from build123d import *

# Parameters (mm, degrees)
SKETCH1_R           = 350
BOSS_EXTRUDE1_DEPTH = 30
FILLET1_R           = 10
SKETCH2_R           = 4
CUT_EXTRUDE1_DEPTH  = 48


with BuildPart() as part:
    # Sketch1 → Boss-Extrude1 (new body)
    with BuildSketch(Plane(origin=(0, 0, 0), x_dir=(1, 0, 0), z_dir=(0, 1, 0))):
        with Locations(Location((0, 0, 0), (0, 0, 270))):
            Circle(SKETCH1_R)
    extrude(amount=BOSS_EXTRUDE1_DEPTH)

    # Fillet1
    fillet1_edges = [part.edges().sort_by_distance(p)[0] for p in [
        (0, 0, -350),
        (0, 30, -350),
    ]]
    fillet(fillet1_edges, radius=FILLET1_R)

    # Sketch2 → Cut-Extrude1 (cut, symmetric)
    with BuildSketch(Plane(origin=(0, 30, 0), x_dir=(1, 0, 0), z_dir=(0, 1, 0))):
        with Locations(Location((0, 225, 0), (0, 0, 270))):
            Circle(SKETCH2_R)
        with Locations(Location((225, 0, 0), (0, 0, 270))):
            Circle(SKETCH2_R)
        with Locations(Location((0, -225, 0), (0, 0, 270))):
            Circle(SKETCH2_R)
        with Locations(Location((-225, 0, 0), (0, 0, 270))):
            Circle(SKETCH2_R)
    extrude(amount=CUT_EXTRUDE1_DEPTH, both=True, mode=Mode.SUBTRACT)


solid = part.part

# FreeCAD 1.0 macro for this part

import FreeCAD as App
import Part
import Sketcher


def edges_at(feature, points):
    """Names of the edges that pass closest to the given points."""
    edges = feature.Shape.Edges
    near = lambda p: min(range(len(edges)), key=lambda i: edges[i].distToShape(Part.Vertex(*p))[0])
    return sorted({f"Edge{near(p) + 1}" for p in points})

doc = App.newDocument("Part")
body = doc.addObject("PartDesign::Body", "Body")

# Sketch on XZ plane
sketch1 = doc.addObject("Sketcher::SketchObject", "Sketch")
body.addObject(sketch1)
sketch1.AttachmentSupport = (doc.XZ_Plane, [""])
sketch1.MapMode = "FlatFace"
sketch1.addGeometry(Part.Circle(App.Vector(0, 0, 0), App.Vector(0, 0, 1), 350), False)
sketch1.addConstraint(Sketcher.Constraint("Coincident", 0, 3, -1, 1))
sketch1.addConstraint(Sketcher.Constraint("Diameter", 0, 700.0))
pad1 = doc.addObject("PartDesign::Pad", "Pad")
body.addObject(pad1)
pad1.Profile = sketch1
pad1.Length = 30
pad1.Reversed = True
doc.recompute()

fillet = doc.addObject("PartDesign::Fillet", "Fillet")
body.addObject(fillet)
fillet.Base = (pad1, edges_at(pad1, [(0, 0, -350), (0, 30, -350)]))
fillet.Radius = 10

# Sketch on XZ plane
sketch2 = doc.addObject("Sketcher::SketchObject", "Sketch001")
body.addObject(sketch2)
sketch2.AttachmentSupport = (doc.XZ_Plane, [""])
sketch2.MapMode = "FlatFace"
sketch2.AttachmentOffset = App.Placement(App.Vector(0, 0, -30), App.Rotation())
sketch2.addGeometry(Part.Circle(App.Vector(0, -225, 0), App.Vector(0, 0, 1), 4), False)
sketch2.addGeometry(Part.Circle(App.Vector(225, 0, 0), App.Vector(0, 0, 1), 4), False)
sketch2.addGeometry(Part.Circle(App.Vector(0, 225, 0), App.Vector(0, 0, 1), 4), False)
sketch2.addGeometry(Part.Circle(App.Vector(-225, 0, 0), App.Vector(0, 0, 1), 4), False)
sketch2.addConstraint(Sketcher.Constraint("Equal", 0, 1))
sketch2.addConstraint(Sketcher.Constraint("Equal", 1, 2))
sketch2.addConstraint(Sketcher.Constraint("Equal", 2, 3))
sketch2.addConstraint(Sketcher.Constraint("Symmetric", 0, 3, 2, 3, -1, 1))
sketch2.addConstraint(Sketcher.Constraint("Symmetric", 1, 3, 3, 3, -1, 1))
sketch2.addConstraint(Sketcher.Constraint("PointOnObject", 0, 3, -2))
sketch2.addConstraint(Sketcher.Constraint("PointOnObject", 1, 3, -1))
sketch2.addConstraint(Sketcher.Constraint("Diameter", 0, 8.0))
sketch2.addConstraint(Sketcher.Constraint("DistanceY", 0, 3, -1, 1, 225.0))
sketch2.addConstraint(Sketcher.Constraint("DistanceX", -1, 1, 1, 3, 225.0))
pocket1 = doc.addObject("PartDesign::Pocket", "Pocket")
body.addObject(pocket1)
pocket1.Profile = sketch2
pocket1.Length = 96
pocket1.Midplane = True

doc.recompute()
